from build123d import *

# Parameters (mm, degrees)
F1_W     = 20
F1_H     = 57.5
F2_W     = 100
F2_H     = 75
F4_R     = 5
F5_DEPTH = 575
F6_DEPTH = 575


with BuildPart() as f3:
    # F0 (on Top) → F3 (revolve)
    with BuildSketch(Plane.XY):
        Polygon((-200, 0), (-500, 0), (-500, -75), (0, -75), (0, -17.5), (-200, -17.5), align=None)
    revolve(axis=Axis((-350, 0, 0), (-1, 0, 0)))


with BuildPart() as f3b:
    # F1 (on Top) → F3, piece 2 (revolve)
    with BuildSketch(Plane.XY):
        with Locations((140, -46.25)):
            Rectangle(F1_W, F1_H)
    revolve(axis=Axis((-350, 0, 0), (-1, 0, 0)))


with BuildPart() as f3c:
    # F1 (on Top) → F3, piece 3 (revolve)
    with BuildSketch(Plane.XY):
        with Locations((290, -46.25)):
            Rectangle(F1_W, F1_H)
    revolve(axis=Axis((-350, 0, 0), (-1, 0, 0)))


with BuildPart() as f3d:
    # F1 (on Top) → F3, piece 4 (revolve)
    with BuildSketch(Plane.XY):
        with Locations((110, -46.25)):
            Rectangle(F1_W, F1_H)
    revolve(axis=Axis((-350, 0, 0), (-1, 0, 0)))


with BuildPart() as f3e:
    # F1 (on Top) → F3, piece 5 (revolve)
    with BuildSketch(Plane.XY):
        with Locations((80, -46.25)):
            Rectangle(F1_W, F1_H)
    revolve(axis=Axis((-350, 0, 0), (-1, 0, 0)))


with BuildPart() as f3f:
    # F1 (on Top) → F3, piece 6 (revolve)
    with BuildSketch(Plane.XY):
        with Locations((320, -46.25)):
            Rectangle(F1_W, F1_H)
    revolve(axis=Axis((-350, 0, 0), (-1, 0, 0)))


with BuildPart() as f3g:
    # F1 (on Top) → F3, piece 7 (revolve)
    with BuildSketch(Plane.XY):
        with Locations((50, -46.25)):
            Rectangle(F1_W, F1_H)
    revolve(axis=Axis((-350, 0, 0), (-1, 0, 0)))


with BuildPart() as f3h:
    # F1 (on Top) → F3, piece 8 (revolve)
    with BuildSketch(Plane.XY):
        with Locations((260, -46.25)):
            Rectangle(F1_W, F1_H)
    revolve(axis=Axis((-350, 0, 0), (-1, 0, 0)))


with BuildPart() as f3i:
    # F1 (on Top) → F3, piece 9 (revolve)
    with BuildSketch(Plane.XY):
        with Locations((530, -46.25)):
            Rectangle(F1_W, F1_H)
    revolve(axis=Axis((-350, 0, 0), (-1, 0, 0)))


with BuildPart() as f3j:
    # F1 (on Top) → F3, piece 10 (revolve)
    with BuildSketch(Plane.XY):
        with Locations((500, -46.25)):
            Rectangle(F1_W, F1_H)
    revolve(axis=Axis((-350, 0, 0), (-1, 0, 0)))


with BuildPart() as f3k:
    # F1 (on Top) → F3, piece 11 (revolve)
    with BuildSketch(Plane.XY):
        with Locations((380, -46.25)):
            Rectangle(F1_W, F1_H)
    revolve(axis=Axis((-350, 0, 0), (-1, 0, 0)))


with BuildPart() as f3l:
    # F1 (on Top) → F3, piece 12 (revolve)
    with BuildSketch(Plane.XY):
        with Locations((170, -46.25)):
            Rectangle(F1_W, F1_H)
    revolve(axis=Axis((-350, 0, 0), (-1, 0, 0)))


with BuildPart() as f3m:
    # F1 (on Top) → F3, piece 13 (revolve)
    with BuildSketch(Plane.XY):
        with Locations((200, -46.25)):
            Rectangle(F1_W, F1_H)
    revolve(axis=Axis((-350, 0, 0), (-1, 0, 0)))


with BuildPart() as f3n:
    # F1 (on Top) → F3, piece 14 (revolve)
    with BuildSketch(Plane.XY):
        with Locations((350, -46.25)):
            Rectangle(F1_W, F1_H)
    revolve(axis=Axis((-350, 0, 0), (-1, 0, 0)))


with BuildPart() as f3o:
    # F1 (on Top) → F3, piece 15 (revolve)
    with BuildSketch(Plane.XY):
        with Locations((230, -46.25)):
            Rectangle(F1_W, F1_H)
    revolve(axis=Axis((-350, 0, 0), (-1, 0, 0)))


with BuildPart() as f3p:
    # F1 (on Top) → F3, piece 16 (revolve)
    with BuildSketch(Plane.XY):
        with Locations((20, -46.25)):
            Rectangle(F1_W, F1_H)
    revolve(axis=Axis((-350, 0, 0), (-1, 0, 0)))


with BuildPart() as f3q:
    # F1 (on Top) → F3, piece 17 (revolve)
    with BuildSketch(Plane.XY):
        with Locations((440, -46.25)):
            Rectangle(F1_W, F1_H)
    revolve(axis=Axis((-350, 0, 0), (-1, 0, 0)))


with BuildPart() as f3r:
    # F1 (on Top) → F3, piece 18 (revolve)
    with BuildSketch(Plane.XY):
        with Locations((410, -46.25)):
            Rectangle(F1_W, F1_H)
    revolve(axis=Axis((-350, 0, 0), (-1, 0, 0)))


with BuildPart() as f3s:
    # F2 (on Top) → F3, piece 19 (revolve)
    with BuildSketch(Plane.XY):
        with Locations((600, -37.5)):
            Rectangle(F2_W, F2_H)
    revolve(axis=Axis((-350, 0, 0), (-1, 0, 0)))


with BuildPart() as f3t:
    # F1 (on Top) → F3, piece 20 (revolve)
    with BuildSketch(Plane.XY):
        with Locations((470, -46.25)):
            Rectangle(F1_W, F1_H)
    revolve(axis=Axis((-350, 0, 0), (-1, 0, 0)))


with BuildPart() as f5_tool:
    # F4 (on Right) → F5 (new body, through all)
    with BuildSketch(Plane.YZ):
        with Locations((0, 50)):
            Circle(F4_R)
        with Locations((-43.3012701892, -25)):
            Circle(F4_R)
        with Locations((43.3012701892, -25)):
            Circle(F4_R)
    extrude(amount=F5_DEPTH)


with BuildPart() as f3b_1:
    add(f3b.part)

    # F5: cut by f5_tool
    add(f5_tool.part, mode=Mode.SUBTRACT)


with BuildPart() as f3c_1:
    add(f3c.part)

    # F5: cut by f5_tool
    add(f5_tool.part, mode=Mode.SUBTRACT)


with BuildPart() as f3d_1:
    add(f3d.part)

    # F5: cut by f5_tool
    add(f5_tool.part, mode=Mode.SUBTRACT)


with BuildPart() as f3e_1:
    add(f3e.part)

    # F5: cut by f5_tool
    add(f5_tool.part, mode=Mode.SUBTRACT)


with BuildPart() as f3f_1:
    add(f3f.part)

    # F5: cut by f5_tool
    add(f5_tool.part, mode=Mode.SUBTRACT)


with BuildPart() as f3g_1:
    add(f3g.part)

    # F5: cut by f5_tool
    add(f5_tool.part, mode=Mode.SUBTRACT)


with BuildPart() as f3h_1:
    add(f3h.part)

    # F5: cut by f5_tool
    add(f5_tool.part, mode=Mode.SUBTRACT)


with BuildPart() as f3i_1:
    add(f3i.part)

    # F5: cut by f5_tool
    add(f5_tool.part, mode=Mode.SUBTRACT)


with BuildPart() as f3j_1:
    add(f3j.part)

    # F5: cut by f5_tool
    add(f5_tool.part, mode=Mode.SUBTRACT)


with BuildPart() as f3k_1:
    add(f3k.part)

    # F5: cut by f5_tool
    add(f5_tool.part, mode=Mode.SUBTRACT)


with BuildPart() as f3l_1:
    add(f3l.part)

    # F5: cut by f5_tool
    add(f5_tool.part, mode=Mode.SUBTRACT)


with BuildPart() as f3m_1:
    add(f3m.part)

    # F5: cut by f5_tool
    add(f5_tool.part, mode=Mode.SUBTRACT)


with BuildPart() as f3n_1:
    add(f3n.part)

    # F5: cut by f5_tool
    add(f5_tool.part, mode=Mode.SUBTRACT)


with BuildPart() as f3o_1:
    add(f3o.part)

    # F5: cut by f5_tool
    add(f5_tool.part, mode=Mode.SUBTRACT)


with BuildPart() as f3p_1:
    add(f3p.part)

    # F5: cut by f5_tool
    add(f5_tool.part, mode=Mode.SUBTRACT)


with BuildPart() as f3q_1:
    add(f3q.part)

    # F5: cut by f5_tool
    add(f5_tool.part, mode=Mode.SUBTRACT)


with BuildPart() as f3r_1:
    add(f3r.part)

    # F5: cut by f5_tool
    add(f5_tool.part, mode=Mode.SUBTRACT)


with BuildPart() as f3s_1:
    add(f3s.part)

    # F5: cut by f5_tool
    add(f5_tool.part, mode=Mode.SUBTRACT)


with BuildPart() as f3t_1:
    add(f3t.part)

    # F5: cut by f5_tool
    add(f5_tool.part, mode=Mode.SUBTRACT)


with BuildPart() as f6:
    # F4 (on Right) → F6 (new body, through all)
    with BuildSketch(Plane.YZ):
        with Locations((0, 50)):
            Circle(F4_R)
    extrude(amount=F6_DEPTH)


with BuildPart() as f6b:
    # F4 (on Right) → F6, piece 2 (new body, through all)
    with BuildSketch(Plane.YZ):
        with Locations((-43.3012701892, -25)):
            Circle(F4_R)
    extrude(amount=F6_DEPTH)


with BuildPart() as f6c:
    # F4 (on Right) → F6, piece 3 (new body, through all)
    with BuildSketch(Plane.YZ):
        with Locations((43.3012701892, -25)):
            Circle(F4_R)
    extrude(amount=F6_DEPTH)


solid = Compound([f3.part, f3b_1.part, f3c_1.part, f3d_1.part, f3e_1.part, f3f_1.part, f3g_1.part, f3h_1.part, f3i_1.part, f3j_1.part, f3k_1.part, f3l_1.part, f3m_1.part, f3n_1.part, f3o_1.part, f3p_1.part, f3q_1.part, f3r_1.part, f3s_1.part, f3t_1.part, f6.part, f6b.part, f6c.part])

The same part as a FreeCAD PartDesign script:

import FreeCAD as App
import Part
import Sketcher
from FreeCAD import Vector


def add_polygon(sketch, points):
    """Adds a closed chain of lines whose ends are joined by coincident constraints."""
    first, n = sketch.GeometryCount, len(points)
    for a, b in zip(points, points[1:] + points[:1]):
        sketch.addGeometry(Part.LineSegment(App.Vector(*a, 0), App.Vector(*b, 0)), False)
    for i in range(n):
        sketch.addConstraint(Sketcher.Constraint("Coincident", first + i, 2, first + (i + 1) % n, 1))

doc = App.newDocument("Part")
body = doc.addObject("PartDesign::Body", "Body")

# Sketch on XY plane
sketch1 = body.newObject("Sketcher::SketchObject", "Sketch")
sketch1.AttachmentSupport = (doc.getObject("XY_Plane"), [""])
sketch1.MapMode = "FlatFace"
add_polygon(sketch1, [(-200, 0), (-500, 0), (-500, -75), (0, -75), (0, -18), (-200, -18)])  # lines 0-5
sketch1.addConstraint([
    Sketcher.Constraint("Horizontal", 0),
    Sketcher.Constraint("Vertical", 1),
    Sketcher.Constraint("Horizontal", 2),
    Sketcher.Constraint("Vertical", 3),
    Sketcher.Constraint("Horizontal", 4),
    Sketcher.Constraint("Vertical", 5),
    Sketcher.Constraint("PointOnObject", 0, 2, -1),
    Sketcher.Constraint("PointOnObject", 2, 2, -2),
    Sketcher.Constraint("DistanceX", 0, 2, 0, 1, 300.0),
    Sketcher.Constraint("DistanceX", 2, 1, 2, 2, 500.0),
    Sketcher.Constraint("DistanceY", 1, 2, 1, 1, 75.0),
    Sketcher.Constraint("DistanceY", 3, 1, 3, 2, 57.5),
])
revolution = body.newObject("PartDesign::Revolution", "Revolution")
revolution.Profile = sketch1
revolution.ReferenceAxis = (sketch1, ["H_Axis"])
revolution.Angle = 360
body2 = doc.addObject("PartDesign::Body", "Body001")

# Sketch on XY plane
sketch2 = body2.newObject("Sketcher::SketchObject", "Sketch001")
sketch2.AttachmentSupport = (doc.getObject("XY_Plane001"), [""])
sketch2.MapMode = "FlatFace"
add_polygon(sketch2, [(130, -18), (130, -75), (150, -75), (150, -18)])  # lines 0-3
sketch2.addConstraint([
    Sketcher.Constraint("Vertical", 0),
    Sketcher.Constraint("Horizontal", 1),
    Sketcher.Constraint("Vertical", 2),
    Sketcher.Constraint("Horizontal", 3),
    Sketcher.Constraint("DistanceX", 1, 1, 1, 2, 20.0),
    Sketcher.Constraint("DistanceY", 0, 2, 0, 1, 57.5),
    Sketcher.Constraint("DistanceX", -1, 1, 0, 2, 130.0),
    Sketcher.Constraint("DistanceY", 0, 2, -1, 1, 75.0),
])
revolution2 = body2.newObject("PartDesign::Revolution", "Revolution001")
revolution2.Profile = sketch2
revolution2.ReferenceAxis = (sketch2, ["H_Axis"])
revolution2.Angle = 360
body3 = doc.addObject("PartDesign::Body", "Body002")

# Sketch on XY plane
sketch3 = body3.newObject("Sketcher::SketchObject", "Sketch002")
sketch3.AttachmentSupport = (doc.getObject("XY_Plane002"), [""])
sketch3.MapMode = "FlatFace"
add_polygon(sketch3, [(280, -18), (280, -75), (300, -75), (300, -18)])  # lines 0-3
sketch3.addConstraint([
    Sketcher.Constraint("Vertical", 0),
    Sketcher.Constraint("Horizontal", 1),
    Sketcher.Constraint("Vertical", 2),
    Sketcher.Constraint("Horizontal", 3),
    Sketcher.Constraint("DistanceX", 1, 1, 1, 2, 20.0),
    Sketcher.Constraint("DistanceY", 0, 2, 0, 1, 57.5),
    Sketcher.Constraint("DistanceX", -1, 1, 0, 2, 280.0),
    Sketcher.Constraint("DistanceY", 0, 2, -1, 1, 75.0),
])
revolution3 = body3.newObject("PartDesign::Revolution", "Revolution002")
revolution3.Profile = sketch3
revolution3.ReferenceAxis = (sketch3, ["H_Axis"])
revolution3.Angle = 360
body4 = doc.addObject("PartDesign::Body", "Body003")

# Sketch on XY plane
sketch4 = body4.newObject("Sketcher::SketchObject", "Sketch003")
sketch4.AttachmentSupport = (doc.getObject("XY_Plane003"), [""])
sketch4.MapMode = "FlatFace"
add_polygon(sketch4, [(100, -18), (100, -75), (120, -75), (120, -18)])  # lines 0-3
sketch4.addConstraint([
    Sketcher.Constraint("Vertical", 0),
    Sketcher.Constraint("Horizontal", 1),
    Sketcher.Constraint("Vertical", 2),
    Sketcher.Constraint("Horizontal", 3),
    Sketcher.Constraint("DistanceX", 1, 1, 1, 2, 20.0),
    Sketcher.Constraint("DistanceY", 0, 2, 0, 1, 57.5),
    Sketcher.Constraint("DistanceX", -1, 1, 0, 2, 100.0),
    Sketcher.Constraint("DistanceY", 0, 2, -1, 1, 75.0),
])
revolution4 = body4.newObject("PartDesign::Revolution", "Revolution003")
revolution4.Profile = sketch4
revolution4.ReferenceAxis = (sketch4, ["H_Axis"])
revolution4.Angle = 360
body5 = doc.addObject("PartDesign::Body", "Body004")

# Sketch on XY plane
sketch5 = body5.newObject("Sketcher::SketchObject", "Sketch004")
sketch5.AttachmentSupport = (doc.getObject("XY_Plane004"), [""])
sketch5.MapMode = "FlatFace"
add_polygon(sketch5, [(70, -18), (70, -75), (90, -75), (90, -18)])  # lines 0-3
sketch5.addConstraint([
    Sketcher.Constraint("Vertical", 0),
    Sketcher.Constraint("Horizontal", 1),
    Sketcher.Constraint("Vertical", 2),
    Sketcher.Constraint("Horizontal", 3),
    Sketcher.Constraint("DistanceX", 1, 1, 1, 2, 20.0),
    Sketcher.Constraint("DistanceY", 0, 2, 0, 1, 57.5),
    Sketcher.Constraint("DistanceX", -1, 1, 0, 2, 70.0),
    Sketcher.Constraint("DistanceY", 0, 2, -1, 1, 75.0),
])
revolution5 = body5.newObject("PartDesign::Revolution", "Revolution004")
revolution5.Profile = sketch5
revolution5.ReferenceAxis = (sketch5, ["H_Axis"])
revolution5.Angle = 360
body6 = doc.addObject("PartDesign::Body", "Body005")

# Sketch on XY plane
sketch6 = body6.newObject("Sketcher::SketchObject", "Sketch005")
sketch6.AttachmentSupport = (doc.getObject("XY_Plane005"), [""])
sketch6.MapMode = "FlatFace"
add_polygon(sketch6, [(310, -18), (310, -75), (330, -75), (330, -18)])  # lines 0-3
sketch6.addConstraint([
    Sketcher.Constraint("Vertical", 0),
    Sketcher.Constraint("Horizontal", 1),
    Sketcher.Constraint("Vertical", 2),
    Sketcher.Constraint("Horizontal", 3),
    Sketcher.Constraint("DistanceX", 1, 1, 1, 2, 20.0),
    Sketcher.Constraint("DistanceY", 0, 2, 0, 1, 57.5),
    Sketcher.Constraint("DistanceX", -1, 1, 0, 2, 310.0),
    Sketcher.Constraint("DistanceY", 0, 2, -1, 1, 75.0),
])
revolution6 = body6.newObject("PartDesign::Revolution", "Revolution005")
revolution6.Profile = sketch6
revolution6.ReferenceAxis = (sketch6, ["H_Axis"])
revolution6.Angle = 360
body7 = doc.addObject("PartDesign::Body", "Body006")

# Sketch on XY plane
sketch7 = body7.newObject("Sketcher::SketchObject", "Sketch006")
sketch7.AttachmentSupport = (doc.getObject("XY_Plane006"), [""])
sketch7.MapMode = "FlatFace"
add_polygon(sketch7, [(40, -18), (40, -75), (60, -75), (60, -18)])  # lines 0-3
sketch7.addConstraint([
    Sketcher.Constraint("Vertical", 0),
    Sketcher.Constraint("Horizontal", 1),
    Sketcher.Constraint("Vertical", 2),
    Sketcher.Constraint("Horizontal", 3),
    Sketcher.Constraint("DistanceX", 1, 1, 1, 2, 20.0),
    Sketcher.Constraint("DistanceY", 0, 2, 0, 1, 57.5),
    Sketcher.Constraint("DistanceX", -1, 1, 0, 2, 40.0),
    Sketcher.Constraint("DistanceY", 0, 2, -1, 1, 75.0),
])
revolution7 = body7.newObject("PartDesign::Revolution", "Revolution006")
revolution7.Profile = sketch7
revolution7.ReferenceAxis = (sketch7, ["H_Axis"])
revolution7.Angle = 360
body8 = doc.addObject("PartDesign::Body", "Body007")

# Sketch on XY plane
sketch8 = body8.newObject("Sketcher::SketchObject", "Sketch007")
sketch8.AttachmentSupport = (doc.getObject("XY_Plane007"), [""])
sketch8.MapMode = "FlatFace"
add_polygon(sketch8, [(250, -18), (250, -75), (270, -75), (270, -18)])  # lines 0-3
sketch8.addConstraint([
    Sketcher.Constraint("Vertical", 0),
    Sketcher.Constraint("Horizontal", 1),
    Sketcher.Constraint("Vertical", 2),
    Sketcher.Constraint("Horizontal", 3),
    Sketcher.Constraint("DistanceX", 1, 1, 1, 2, 20.0),
    Sketcher.Constraint("DistanceY", 0, 2, 0, 1, 57.5),
    Sketcher.Constraint("DistanceX", -1, 1, 0, 2, 250.0),
    Sketcher.Constraint("DistanceY", 0, 2, -1, 1, 75.0),
])
revolution8 = body8.newObject("PartDesign::Revolution", "Revolution007")
revolution8.Profile = sketch8
revolution8.ReferenceAxis = (sketch8, ["H_Axis"])
revolution8.Angle = 360
body9 = doc.addObject("PartDesign::Body", "Body008")

# Sketch on XY plane
sketch9 = body9.newObject("Sketcher::SketchObject", "Sketch008")
sketch9.AttachmentSupport = (doc.getObject("XY_Plane008"), [""])
sketch9.MapMode = "FlatFace"
add_polygon(sketch9, [(520, -18), (520, -75), (540, -75), (540, -18)])  # lines 0-3
sketch9.addConstraint([
    Sketcher.Constraint("Vertical", 0),
    Sketcher.Constraint("Horizontal", 1),
    Sketcher.Constraint("Vertical", 2),
    Sketcher.Constraint("Horizontal", 3),
    Sketcher.Constraint("DistanceX", 1, 1, 1, 2, 20.0),
    Sketcher.Constraint("DistanceY", 0, 2, 0, 1, 57.5),
    Sketcher.Constraint("DistanceX", -1, 1, 0, 2, 520.0),
    Sketcher.Constraint("DistanceY", 0, 2, -1, 1, 75.0),
])
revolution9 = body9.newObject("PartDesign::Revolution", "Revolution008")
revolution9.Profile = sketch9
revolution9.ReferenceAxis = (sketch9, ["H_Axis"])
revolution9.Angle = 360
body10 = doc.addObject("PartDesign::Body", "Body009")

# Sketch on XY plane
sketch10 = body10.newObject("Sketcher::SketchObject", "Sketch009")
sketch10.AttachmentSupport = (doc.getObject("XY_Plane009"), [""])
sketch10.MapMode = "FlatFace"
add_polygon(sketch10, [(490, -18), (490, -75), (510, -75), (510, -18)])  # lines 0-3
sketch10.addConstraint([
    Sketcher.Constraint("Vertical", 0),
    Sketcher.Constraint("Horizontal", 1),
    Sketcher.Constraint("Vertical", 2),
    Sketcher.Constraint("Horizontal", 3),
    Sketcher.Constraint("DistanceX", 1, 1, 1, 2, 20.0),
    Sketcher.Constraint("DistanceY", 0, 2, 0, 1, 57.5),
    Sketcher.Constraint("DistanceX", -1, 1, 0, 2, 490.0),
    Sketcher.Constraint("DistanceY", 0, 2, -1, 1, 75.0),
])
revolution10 = body10.newObject("PartDesign::Revolution", "Revolution009")
revolution10.Profile = sketch10
revolution10.ReferenceAxis = (sketch10, ["H_Axis"])
revolution10.Angle = 360
body11 = doc.addObject("PartDesign::Body", "Body010")

# Sketch on XY plane
sketch11 = body11.newObject("Sketcher::SketchObject", "Sketch010")
sketch11.AttachmentSupport = (doc.getObject("XY_Plane010"), [""])
sketch11.MapMode = "FlatFace"
add_polygon(sketch11, [(370, -18), (370, -75), (390, -75), (390, -18)])  # lines 0-3
sketch11.addConstraint([
    Sketcher.Constraint("Vertical", 0),
    Sketcher.Constraint("Horizontal", 1),
    Sketcher.Constraint("Vertical", 2),
    Sketcher.Constraint("Horizontal", 3),
    Sketcher.Constraint("DistanceX", 1, 1, 1, 2, 20.0),
    Sketcher.Constraint("DistanceY", 0, 2, 0, 1, 57.5),
    Sketcher.Constraint("DistanceX", -1, 1, 0, 2, 370.0),
    Sketcher.Constraint("DistanceY", 0, 2, -1, 1, 75.0),
])
revolution11 = body11.newObject("PartDesign::Revolution", "Revolution010")
revolution11.Profile = sketch11
revolution11.ReferenceAxis = (sketch11, ["H_Axis"])
revolution11.Angle = 360
body12 = doc.addObject("PartDesign::Body", "Body011")

# Sketch on XY plane
sketch12 = body12.newObject("Sketcher::SketchObject", "Sketch011")
sketch12.AttachmentSupport = (doc.getObject("XY_Plane011"), [""])
sketch12.MapMode = "FlatFace"
add_polygon(sketch12, [(160, -18), (160, -75), (180, -75), (180, -18)])  # lines 0-3
sketch12.addConstraint([
    Sketcher.Constraint("Vertical", 0),
    Sketcher.Constraint("Horizontal", 1),
    Sketcher.Constraint("Vertical", 2),
    Sketcher.Constraint("Horizontal", 3),
    Sketcher.Constraint("DistanceX", 1, 1, 1, 2, 20.0),
    Sketcher.Constraint("DistanceY", 0, 2, 0, 1, 57.5),
    Sketcher.Constraint("DistanceX", -1, 1, 0, 2, 160.0),
    Sketcher.Constraint("DistanceY", 0, 2, -1, 1, 75.0),
])
revolution12 = body12.newObject("PartDesign::Revolution", "Revolution011")
revolution12.Profile = sketch12
revolution12.ReferenceAxis = (sketch12, ["H_Axis"])
revolution12.Angle = 360
body13 = doc.addObject("PartDesign::Body", "Body012")

# Sketch on XY plane
sketch13 = body13.newObject("Sketcher::SketchObject", "Sketch012")
sketch13.AttachmentSupport = (doc.getObject("XY_Plane012"), [""])
sketch13.MapMode = "FlatFace"
add_polygon(sketch13, [(190, -18), (190, -75), (210, -75), (210, -18)])  # lines 0-3
sketch13.addConstraint([
    Sketcher.Constraint("Vertical", 0),
    Sketcher.Constraint("Horizontal", 1),
    Sketcher.Constraint("Vertical", 2),
    Sketcher.Constraint("Horizontal", 3),
    Sketcher.Constraint("DistanceX", 1, 1, 1, 2, 20.0),
    Sketcher.Constraint("DistanceY", 0, 2, 0, 1, 57.5),
    Sketcher.Constraint("DistanceX", -1, 1, 0, 2, 190.0),
    Sketcher.Constraint("DistanceY", 0, 2, -1, 1, 75.0),
])
revolution13 = body13.newObject("PartDesign::Revolution", "Revolution012")
revolution13.Profile = sketch13
revolution13.ReferenceAxis = (sketch13, ["H_Axis"])
revolution13.Angle = 360
body14 = doc.addObject("PartDesign::Body", "Body013")

# Sketch on XY plane
sketch14 = body14.newObject("Sketcher::SketchObject", "Sketch013")
sketch14.AttachmentSupport = (doc.getObject("XY_Plane013"), [""])
sketch14.MapMode = "FlatFace"
add_polygon(sketch14, [(340, -18), (340, -75), (360, -75), (360, -18)])  # lines 0-3
sketch14.addConstraint([
    Sketcher.Constraint("Vertical", 0),
    Sketcher.Constraint("Horizontal", 1),
    Sketcher.Constraint("Vertical", 2),
    Sketcher.Constraint("Horizontal", 3),
    Sketcher.Constraint("DistanceX", 1, 1, 1, 2, 20.0),
    Sketcher.Constraint("DistanceY", 0, 2, 0, 1, 57.5),
    Sketcher.Constraint("DistanceX", -1, 1, 0, 2, 340.0),
    Sketcher.Constraint("DistanceY", 0, 2, -1, 1, 75.0),
])
revolution14 = body14.newObject("PartDesign::Revolution", "Revolution013")
revolution14.Profile = sketch14
revolution14.ReferenceAxis = (sketch14, ["H_Axis"])
revolution14.Angle = 360
body15 = doc.addObject("PartDesign::Body", "Body014")

# Sketch on XY plane
sketch15 = body15.newObject("Sketcher::SketchObject", "Sketch014")
sketch15.AttachmentSupport = (doc.getObject("XY_Plane014"), [""])
sketch15.MapMode = "FlatFace"
add_polygon(sketch15, [(220, -18), (220, -75), (240, -75), (240, -18)])  # lines 0-3
sketch15.addConstraint([
    Sketcher.Constraint("Vertical", 0),
    Sketcher.Constraint("Horizontal", 1),
    Sketcher.Constraint("Vertical", 2),
    Sketcher.Constraint("Horizontal", 3),
    Sketcher.Constraint("DistanceX", 1, 1, 1, 2, 20.0),
    Sketcher.Constraint("DistanceY", 0, 2, 0, 1, 57.5),
    Sketcher.Constraint("DistanceX", -1, 1, 0, 2, 220.0),
    Sketcher.Constraint("DistanceY", 0, 2, -1, 1, 75.0),
])
revolution15 = body15.newObject("PartDesign::Revolution", "Revolution014")
revolution15.Profile = sketch15
revolution15.ReferenceAxis = (sketch15, ["H_Axis"])
revolution15.Angle = 360
body16 = doc.addObject("PartDesign::Body", "Body015")

# Sketch on XY plane
sketch16 = body16.newObject("Sketcher::SketchObject", "Sketch015")
sketch16.AttachmentSupport = (doc.getObject("XY_Plane015"), [""])
sketch16.MapMode = "FlatFace"
add_polygon(sketch16, [(10, -18), (10, -75), (30, -75), (30, -18)])  # lines 0-3
sketch16.addConstraint([
    Sketcher.Constraint("Vertical", 0),
    Sketcher.Constraint("Horizontal", 1),
    Sketcher.Constraint("Vertical", 2),
    Sketcher.Constraint("Horizontal", 3),
    Sketcher.Constraint("DistanceX", 1, 1, 1, 2, 20.0),
    Sketcher.Constraint("DistanceY", 0, 2, 0, 1, 57.5),
    Sketcher.Constraint("DistanceX", -1, 1, 0, 2, 10.0),
    Sketcher.Constraint("DistanceY", 0, 2, -1, 1, 75.0),
])
revolution16 = body16.newObject("PartDesign::Revolution", "Revolution015")
revolution16.Profile = sketch16
revolution16.ReferenceAxis = (sketch16, ["H_Axis"])
revolution16.Angle = 360
body17 = doc.addObject("PartDesign::Body", "Body016")

# Sketch on XY plane
sketch17 = body17.newObject("Sketcher::SketchObject", "Sketch016")
sketch17.AttachmentSupport = (doc.getObject("XY_Plane016"), [""])
sketch17.MapMode = "FlatFace"
add_polygon(sketch17, [(430, -18), (430, -75), (450, -75), (450, -18)])  # lines 0-3
sketch17.addConstraint([
    Sketcher.Constraint("Vertical", 0),
    Sketcher.Constraint("Horizontal", 1),
    Sketcher.Constraint("Vertical", 2),
    Sketcher.Constraint("Horizontal", 3),
    Sketcher.Constraint("DistanceX", 1, 1, 1, 2, 20.0),
    Sketcher.Constraint("DistanceY", 0, 2, 0, 1, 57.5),
    Sketcher.Constraint("DistanceX", -1, 1, 0, 2, 430.0),
    Sketcher.Constraint("DistanceY", 0, 2, -1, 1, 75.0),
])
revolution17 = body17.newObject("PartDesign::Revolution", "Revolution016")
revolution17.Profile = sketch17
revolution17.ReferenceAxis = (sketch17, ["H_Axis"])
revolution17.Angle = 360
body18 = doc.addObject("PartDesign::Body", "Body017")

# Sketch on XY plane
sketch18 = body18.newObject("Sketcher::SketchObject", "Sketch017")
sketch18.AttachmentSupport = (doc.getObject("XY_Plane017"), [""])
sketch18.MapMode = "FlatFace"
add_polygon(sketch18, [(400, -18), (400, -75), (420, -75), (420, -18)])  # lines 0-3
sketch18.addConstraint([
    Sketcher.Constraint("Vertical", 0),
    Sketcher.Constraint("Horizontal", 1),
    Sketcher.Constraint("Vertical", 2),
    Sketcher.Constraint("Horizontal", 3),
    Sketcher.Constraint("DistanceX", 1, 1, 1, 2, 20.0),
    Sketcher.Constraint("DistanceY", 0, 2, 0, 1, 57.5),
    Sketcher.Constraint("DistanceX", -1, 1, 0, 2, 400.0),
    Sketcher.Constraint("DistanceY", 0, 2, -1, 1, 75.0),
])
revolution18 = body18.newObject("PartDesign::Revolution", "Revolution017")
revolution18.Profile = sketch18
revolution18.ReferenceAxis = (sketch18, ["H_Axis"])
revolution18.Angle = 360
body19 = doc.addObject("PartDesign::Body", "Body018")

# Sketch on XY plane
sketch19 = body19.newObject("Sketcher::SketchObject", "Sketch018")
sketch19.AttachmentSupport = (doc.getObject("XY_Plane018"), [""])
sketch19.MapMode = "FlatFace"
add_polygon(sketch19, [(550, 0), (550, -75), (650, -75), (650, 0)])  # lines 0-3
sketch19.addConstraint([
    Sketcher.Constraint("Vertical", 0),
    Sketcher.Constraint("Horizontal", 1),
    Sketcher.Constraint("Vertical", 2),
    Sketcher.Constraint("Horizontal", 3),
    Sketcher.Constraint("PointOnObject", 2, 2, -1),
    Sketcher.Constraint("DistanceX", 1, 1, 1, 2, 100.0),
    Sketcher.Constraint("DistanceY", 0, 2, 0, 1, 75.0),
    Sketcher.Constraint("DistanceX", -1, 1, 0, 2, 550.0),
])
revolution19 = body19.newObject("PartDesign::Revolution", "Revolution018")
revolution19.Profile = sketch19
revolution19.ReferenceAxis = (sketch19, ["H_Axis"])
revolution19.Angle = 360
body20 = doc.addObject("PartDesign::Body", "Body019")

# Sketch on XY plane
sketch20 = body20.newObject("Sketcher::SketchObject", "Sketch019")
sketch20.AttachmentSupport = (doc.getObject("XY_Plane019"), [""])
sketch20.MapMode = "FlatFace"
add_polygon(sketch20, [(460, -18), (460, -75), (480, -75), (480, -18)])  # lines 0-3
sketch20.addConstraint([
    Sketcher.Constraint("Vertical", 0),
    Sketcher.Constraint("Horizontal", 1),
    Sketcher.Constraint("Vertical", 2),
    Sketcher.Constraint("Horizontal", 3),
    Sketcher.Constraint("DistanceX", 1, 1, 1, 2, 20.0),
    Sketcher.Constraint("DistanceY", 0, 2, 0, 1, 57.5),
    Sketcher.Constraint("DistanceX", -1, 1, 0, 2, 460.0),
    Sketcher.Constraint("DistanceY", 0, 2, -1, 1, 75.0),
])
revolution20 = body20.newObject("PartDesign::Revolution", "Revolution019")
revolution20.Profile = sketch20
revolution20.ReferenceAxis = (sketch20, ["H_Axis"])
revolution20.Angle = 360
body21 = doc.addObject("PartDesign::Body", "Body020")
body21.AllowCompound = True

# Sketch on YZ plane
sketch21 = body21.newObject("Sketcher::SketchObject", "Sketch020")
sketch21.AttachmentSupport = (doc.getObject("YZ_Plane020"), [""])
sketch21.MapMode = "FlatFace"
sketch21.addGeometry([
    Part.Circle(Vector(0, 50, 0), Vector(0, 0, 1), 5),
    Part.Circle(Vector(-43, -25, 0), Vector(0, 0, 1), 5),
    Part.Circle(Vector(43, -25, 0), Vector(0, 0, 1), 5),
], False)
sketch21.addConstraint([
    Sketcher.Constraint("Equal", 0, 1),
    Sketcher.Constraint("Equal", 1, 2),
    Sketcher.Constraint("Symmetric", 1, 3, 2, 3, -2),
    Sketcher.Constraint("PointOnObject", 0, 3, -2),
    Sketcher.Constraint("Diameter", 0, 10.0),
    Sketcher.Constraint("DistanceY", -1, 1, 0, 3, 50.0),
    Sketcher.Constraint("DistanceY", 1, 3, -1, 1, 25.0),
    Sketcher.Constraint("DistanceX", 1, 3, -1, 1, 43.30127),
])
pad1 = body21.newObject("PartDesign::Pad", "Pad")
pad1.Profile = sketch21
pad1.Length = 575
doc.recompute()

body22 = doc.addObject("PartDesign::Body", "Body021")
body22.BaseFeature = body21
boolean = body2.newObject("PartDesign::Boolean", "Boolean")
boolean.Type = "Cut"
boolean.addObjects([body22])
doc.recompute()

body23 = doc.addObject("PartDesign::Body", "Body022")
body23.BaseFeature = body21
boolean2 = body3.newObject("PartDesign::Boolean", "Boolean001")
boolean2.Type = "Cut"
boolean2.addObjects([body23])
doc.recompute()

body24 = doc.addObject("PartDesign::Body", "Body023")
body24.BaseFeature = body21
boolean3 = body4.newObject("PartDesign::Boolean", "Boolean002")
boolean3.Type = "Cut"
boolean3.addObjects([body24])
doc.recompute()

body25 = doc.addObject("PartDesign::Body", "Body024")
body25.BaseFeature = body21
boolean4 = body5.newObject("PartDesign::Boolean", "Boolean003")
boolean4.Type = "Cut"
boolean4.addObjects([body25])
doc.recompute()

body26 = doc.addObject("PartDesign::Body", "Body025")
body26.BaseFeature = body21
boolean5 = body6.newObject("PartDesign::Boolean", "Boolean004")
boolean5.Type = "Cut"
boolean5.addObjects([body26])
doc.recompute()

body27 = doc.addObject("PartDesign::Body", "Body026")
body27.BaseFeature = body21
boolean6 = body7.newObject("PartDesign::Boolean", "Boolean005")
boolean6.Type = "Cut"
boolean6.addObjects([body27])
doc.recompute()

body28 = doc.addObject("PartDesign::Body", "Body027")
body28.BaseFeature = body21
boolean7 = body8.newObject("PartDesign::Boolean", "Boolean006")
boolean7.Type = "Cut"
boolean7.addObjects([body28])
doc.recompute()

body29 = doc.addObject("PartDesign::Body", "Body028")
body29.BaseFeature = body21
boolean8 = body9.newObject("PartDesign::Boolean", "Boolean007")
boolean8.Type = "Cut"
boolean8.addObjects([body29])
doc.recompute()

body30 = doc.addObject("PartDesign::Body", "Body029")
body30.BaseFeature = body21
boolean9 = body10.newObject("PartDesign::Boolean", "Boolean008")
boolean9.Type = "Cut"
boolean9.addObjects([body30])
doc.recompute()

body31 = doc.addObject("PartDesign::Body", "Body030")
body31.BaseFeature = body21
boolean10 = body11.newObject("PartDesign::Boolean", "Boolean009")
boolean10.Type = "Cut"
boolean10.addObjects([body31])
doc.recompute()

body32 = doc.addObject("PartDesign::Body", "Body031")
body32.BaseFeature = body21
boolean11 = body12.newObject("PartDesign::Boolean", "Boolean010")
boolean11.Type = "Cut"
boolean11.addObjects([body32])
doc.recompute()

body33 = doc.addObject("PartDesign::Body", "Body032")
body33.BaseFeature = body21
boolean12 = body13.newObject("PartDesign::Boolean", "Boolean011")
boolean12.Type = "Cut"
boolean12.addObjects([body33])
doc.recompute()

body34 = doc.addObject("PartDesign::Body", "Body033")
body34.BaseFeature = body21
boolean13 = body14.newObject("PartDesign::Boolean", "Boolean012")
boolean13.Type = "Cut"
boolean13.addObjects([body34])
doc.recompute()

body35 = doc.addObject("PartDesign::Body", "Body034")
body35.BaseFeature = body21
boolean14 = body15.newObject("PartDesign::Boolean", "Boolean013")
boolean14.Type = "Cut"
boolean14.addObjects([body35])
doc.recompute()

body36 = doc.addObject("PartDesign::Body", "Body035")
body36.BaseFeature = body21
boolean15 = body16.newObject("PartDesign::Boolean", "Boolean014")
boolean15.Type = "Cut"
boolean15.addObjects([body36])
doc.recompute()

body37 = doc.addObject("PartDesign::Body", "Body036")
body37.BaseFeature = body21
boolean16 = body17.newObject("PartDesign::Boolean", "Boolean015")
boolean16.Type = "Cut"
boolean16.addObjects([body37])
doc.recompute()

body38 = doc.addObject("PartDesign::Body", "Body037")
body38.BaseFeature = body21
boolean17 = body18.newObject("PartDesign::Boolean", "Boolean016")
boolean17.Type = "Cut"
boolean17.addObjects([body38])
doc.recompute()

body39 = doc.addObject("PartDesign::Body", "Body038")
body39.BaseFeature = body21
boolean18 = body19.newObject("PartDesign::Boolean", "Boolean017")
boolean18.Type = "Cut"
boolean18.addObjects([body39])
doc.recompute()

boolean19 = body20.newObject("PartDesign::Boolean", "Boolean018")
boolean19.Type = "Cut"
boolean19.addObjects([body21])
body40 = doc.addObject("PartDesign::Body", "Body039")

# Sketch on YZ plane
sketch22 = body40.newObject("Sketcher::SketchObject", "Sketch021")
sketch22.AttachmentSupport = (doc.getObject("YZ_Plane039"), [""])
sketch22.MapMode = "FlatFace"
sketch22.addGeometry(Part.Circle(Vector(0, 50, 0), Vector(0, 0, 1), 5), False)
sketch22.addConstraint([
    Sketcher.Constraint("PointOnObject", 0, 3, -2),
    Sketcher.Constraint("Diameter", 0, 10.0),
    Sketcher.Constraint("DistanceY", -1, 1, 0, 3, 50.0),
])
pad2 = body40.newObject("PartDesign::Pad", "Pad001")
pad2.Profile = sketch22
pad2.Length = 575
body41 = doc.addObject("PartDesign::Body", "Body040")

# Sketch on YZ plane
sketch23 = body41.newObject("Sketcher::SketchObject", "Sketch022")
sketch23.AttachmentSupport = (doc.getObject("YZ_Plane040"), [""])
sketch23.MapMode = "FlatFace"
sketch23.addGeometry(Part.Circle(Vector(-43, -25, 0), Vector(0, 0, 1), 5), False)
sketch23.addConstraint([
    Sketcher.Constraint("Diameter", 0, 10.0),
    Sketcher.Constraint("DistanceY", 0, 3, -1, 1, 25.0),
    Sketcher.Constraint("DistanceX", 0, 3, -1, 1, 43.30127),
])
pad3 = body41.newObject("PartDesign::Pad", "Pad002")
pad3.Profile = sketch23
pad3.Length = 575
body42 = doc.addObject("PartDesign::Body", "Body041")

# Sketch on YZ plane
sketch24 = body42.newObject("Sketcher::SketchObject", "Sketch023")
sketch24.AttachmentSupport = (doc.getObject("YZ_Plane041"), [""])
sketch24.MapMode = "FlatFace"
sketch24.addGeometry(Part.Circle(Vector(43, -25, 0), Vector(0, 0, 1), 5), False)
sketch24.addConstraint([
    Sketcher.Constraint("Diameter", 0, 10.0),
    Sketcher.Constraint("DistanceY", 0, 3, -1, 1, 25.0),
    Sketcher.Constraint("DistanceX", -1, 1, 0, 3, 43.30127),
])
pad4 = body42.newObject("PartDesign::Pad", "Pad003")
pad4.Profile = sketch24
pad4.Length = 575

doc.recompute()
